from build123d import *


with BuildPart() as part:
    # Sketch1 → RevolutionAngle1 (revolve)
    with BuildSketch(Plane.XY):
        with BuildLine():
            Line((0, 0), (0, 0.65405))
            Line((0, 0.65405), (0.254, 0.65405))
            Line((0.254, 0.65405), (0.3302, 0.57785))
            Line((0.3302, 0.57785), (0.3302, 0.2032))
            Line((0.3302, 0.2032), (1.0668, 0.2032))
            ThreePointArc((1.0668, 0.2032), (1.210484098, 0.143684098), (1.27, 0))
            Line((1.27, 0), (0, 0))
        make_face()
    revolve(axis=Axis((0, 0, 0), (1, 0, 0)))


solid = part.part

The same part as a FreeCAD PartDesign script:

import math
import FreeCAD as App
import Part
import Sketcher
Q = App.Units.Quantity

doc = App.newDocument("Part")
body = doc.addObject("PartDesign::Body", "Body")

# Sketch on XY plane
sketch1 = doc.addObject("Sketcher::SketchObject", "Sketch")
body.addObject(sketch1)
sketch1.AttachmentSupport = (doc.XY_Plane, [""])
sketch1.MapMode = "FlatFace"
sketch1.addGeometry(Part.LineSegment(App.Vector(0, 0.65405, 0), App.Vector(0, 0, 0)), False)
sketch1.addGeometry(Part.LineSegment(App.Vector(0, 0, 0), App.Vector(1.27, 0, 0)), False)
sketch1.addGeometry(Part.ArcOfCircle(Part.Circle(App.Vector(1.0668, 0, 0), App.Vector(0, 0, 1), 0.2032), math.radians(0), math.radians(90)), False)
sketch1.addGeometry(Part.LineSegment(App.Vector(1.0668, 0.2032, 0), App.Vector(0.3302, 0.2032, 0)), False)
sketch1.addGeometry(Part.LineSegment(App.Vector(0.3302, 0.2032, 0), App.Vector(0.3302, 0.57785, 0)), False)
sketch1.addGeometry(Part.LineSegment(App.Vector(0.3302, 0.57785, 0), App.Vector(0.254, 0.65405, 0)), False)
sketch1.addGeometry(Part.LineSegment(App.Vector(0.254, 0.65405, 0), App.Vector(0, 0.65405, 0)), False)
sketch1.addConstraint(Sketcher.Constraint("Coincident", 0, 2, 1, 1))
sketch1.addConstraint(Sketcher.Constraint("Coincident", 1, 2, 2, 1))
sketch1.addConstraint(Sketcher.Constraint("Tangent", 2, 2, 3, 1))
sketch1.addConstraint(Sketcher.Constraint("Coincident", 3, 2, 4, 1))
sketch1.addConstraint(Sketcher.Constraint("Coincident", 4, 2, 5, 1))
sketch1.addConstraint(Sketcher.Constraint("Coincident", 5, 2, 6, 1))
sketch1.addConstraint(Sketcher.Constraint("Coincident", 6, 2, 0, 1))
sketch1.addConstraint(Sketcher.Constraint("Vertical", 0))
sketch1.addConstraint(Sketcher.Constraint("Horizontal", 1))
sketch1.addConstraint(Sketcher.Constraint("Horizontal", 3))
sketch1.addConstraint(Sketcher.Constraint("Vertical", 4))
sketch1.addConstraint(Sketcher.Constraint("Horizontal", 6))
sketch1.addConstraint(Sketcher.Constraint("Coincident", 0, 2, -1, 1))
sketch1.addConstraint(Sketcher.Constraint("PointOnObject", 2, 3, -1))
sketch1.addConstraint(Sketcher.Constraint("Angle", 5, Q("135 deg")))
sketch1.addConstraint(Sketcher.Constraint("Radius", 2, Q("0.008 in")))
sketch1.addConstraint(Sketcher.Constraint("DistanceX", 1, 1, 1, 2, Q("0.05 in")))
sketch1.addConstraint(Sketcher.Constraint("DistanceX", 6, 2, 6, 1, Q("0.01 in")))
sketch1.addConstraint(Sketcher.Constraint("DistanceX", 3, 2, 3, 1, Q("0.029 in")))
sketch1.addConstraint(Sketcher.Constraint("DistanceY", 0, 2, 0, 1, 0.65405))
revolution = doc.addObject("PartDesign::Revolution", "Revolution")
body.addObject(revolution)
revolution.Profile = sketch1
revolution.ReferenceAxis = (sketch1, ["H_Axis"])
revolution.Angle = 360

doc.recompute()
